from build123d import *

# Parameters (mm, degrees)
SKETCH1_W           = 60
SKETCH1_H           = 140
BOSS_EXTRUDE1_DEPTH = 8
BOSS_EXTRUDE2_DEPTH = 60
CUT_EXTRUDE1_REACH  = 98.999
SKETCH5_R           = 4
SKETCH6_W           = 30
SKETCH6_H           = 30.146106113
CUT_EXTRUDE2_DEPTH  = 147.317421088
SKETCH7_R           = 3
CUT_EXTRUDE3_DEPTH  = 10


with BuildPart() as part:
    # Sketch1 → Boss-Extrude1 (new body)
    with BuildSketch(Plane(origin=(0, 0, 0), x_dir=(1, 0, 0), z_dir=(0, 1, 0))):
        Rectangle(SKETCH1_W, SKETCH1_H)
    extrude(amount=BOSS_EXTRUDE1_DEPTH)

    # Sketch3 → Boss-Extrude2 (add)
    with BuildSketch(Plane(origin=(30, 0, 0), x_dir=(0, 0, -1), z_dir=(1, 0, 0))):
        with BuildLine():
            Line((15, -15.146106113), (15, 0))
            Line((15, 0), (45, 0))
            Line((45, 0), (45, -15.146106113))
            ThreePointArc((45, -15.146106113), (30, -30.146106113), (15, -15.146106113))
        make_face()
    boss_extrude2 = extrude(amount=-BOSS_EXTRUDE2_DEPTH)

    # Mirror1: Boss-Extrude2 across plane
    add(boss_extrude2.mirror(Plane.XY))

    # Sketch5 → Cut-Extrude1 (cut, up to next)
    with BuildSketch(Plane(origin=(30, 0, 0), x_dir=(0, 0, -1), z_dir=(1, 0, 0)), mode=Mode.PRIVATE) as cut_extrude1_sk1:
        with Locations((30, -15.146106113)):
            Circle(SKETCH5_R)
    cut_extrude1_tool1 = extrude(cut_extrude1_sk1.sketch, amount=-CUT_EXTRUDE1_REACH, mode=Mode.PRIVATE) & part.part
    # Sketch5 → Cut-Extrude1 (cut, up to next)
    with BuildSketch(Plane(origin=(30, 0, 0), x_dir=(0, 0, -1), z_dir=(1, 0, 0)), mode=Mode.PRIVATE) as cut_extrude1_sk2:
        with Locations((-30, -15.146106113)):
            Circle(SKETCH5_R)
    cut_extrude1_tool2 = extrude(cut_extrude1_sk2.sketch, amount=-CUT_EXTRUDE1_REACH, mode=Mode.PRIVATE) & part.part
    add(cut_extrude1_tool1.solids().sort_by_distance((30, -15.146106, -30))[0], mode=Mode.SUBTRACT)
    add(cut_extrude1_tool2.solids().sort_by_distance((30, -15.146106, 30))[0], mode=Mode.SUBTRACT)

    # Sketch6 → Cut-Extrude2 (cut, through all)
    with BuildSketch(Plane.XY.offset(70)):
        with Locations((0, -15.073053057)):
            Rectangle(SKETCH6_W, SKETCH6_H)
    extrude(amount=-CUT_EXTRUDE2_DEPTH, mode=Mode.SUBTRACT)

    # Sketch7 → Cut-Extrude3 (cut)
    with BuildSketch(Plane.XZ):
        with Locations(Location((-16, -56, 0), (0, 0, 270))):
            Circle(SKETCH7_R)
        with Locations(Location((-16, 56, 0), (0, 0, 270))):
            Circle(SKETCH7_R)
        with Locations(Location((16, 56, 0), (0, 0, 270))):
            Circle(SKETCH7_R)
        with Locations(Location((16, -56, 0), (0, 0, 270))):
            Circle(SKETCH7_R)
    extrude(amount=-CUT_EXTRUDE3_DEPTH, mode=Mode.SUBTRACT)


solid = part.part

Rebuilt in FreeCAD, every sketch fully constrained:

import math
import FreeCAD as App
import Part
import Sketcher


def add_polygon(sketch, points):
    """Adds a closed chain of lines whose ends are joined by coincident constraints."""
    first, n = sketch.GeometryCount, len(points)
    for a, b in zip(points, points[1:] + points[:1]):
        sketch.addGeometry(Part.LineSegment(App.Vector(*a, 0), App.Vector(*b, 0)), False)
    for i in range(n):
        sketch.addConstraint(Sketcher.Constraint("Coincident", first + i, 2, first + (i + 1) % n, 1))

doc = App.newDocument("Part")
body = doc.addObject("PartDesign::Body", "Body")

# Sketch on XZ plane
sketch1 = doc.addObject("Sketcher::SketchObject", "Sketch")
body.addObject(sketch1)
sketch1.AttachmentSupport = (doc.XZ_Plane, [""])
sketch1.MapMode = "FlatFace"
add_polygon(sketch1, [(-30, -70), (-30, 70), (30, 70), (30, -70)])  # lines 0-3
sketch1.addConstraint([
    Sketcher.Constraint("Vertical", 0),
    Sketcher.Constraint("Horizontal", 1),
    Sketcher.Constraint("Vertical", 2),
    Sketcher.Constraint("Horizontal", 3),
    Sketcher.Constraint("Symmetric", 0, 2, 2, 2, -1, 1),
    Sketcher.Constraint("DistanceX", 1, 1, 1, 2, 60.0),
    Sketcher.Constraint("DistanceY", 0, 1, 0, 2, 140.0),
])
pad1 = doc.addObject("PartDesign::Pad", "Pad")
body.addObject(pad1)
pad1.Profile = sketch1
pad1.Length = 8
pad1.Reversed = True

# Sketch on YZ plane
sketch2 = doc.addObject("Sketcher::SketchObject", "Sketch001")
body.addObject(sketch2)
sketch2.AttachmentSupport = (doc.YZ_Plane, [""])
sketch2.MapMode = "FlatFace"
sketch2.AttachmentOffset = App.Placement(App.Vector(0, 0, 30), App.Rotation())
sketch2.addGeometry([
    Part.LineSegment(App.Vector(0, -15, 0), App.Vector(-15, -15, 0)),
    Part.ArcOfCircle(Part.Circle(App.Vector(-15, -30, 0), App.Vector(0, 0, 1), 15), math.radians(90), math.radians(270)),
    Part.LineSegment(App.Vector(-15, -45, 0), App.Vector(0, -45, 0)),
    Part.LineSegment(App.Vector(0, -45, 0), App.Vector(0, -15, 0)),
], False)
sketch2.addConstraint([
    Sketcher.Constraint("Tangent", 0, 2, 1, 1),
    Sketcher.Constraint("Tangent", 1, 2, 2, 1),
    Sketcher.Constraint("Coincident", 2, 2, 3, 1),
    Sketcher.Constraint("Coincident", 3, 2, 0, 1),
    Sketcher.Constraint("Horizontal", 0),
    Sketcher.Constraint("Horizontal", 2),
    Sketcher.Constraint("Vertical", 3),
    Sketcher.Constraint("PointOnObject", 2, 2, -2),
    Sketcher.Constraint("Radius", 1, 15.0),
    Sketcher.Constraint("DistanceY", 1, 3, -1, 1, 30.0),
    Sketcher.Constraint("DistanceX", 0, 2, 0, 1, 15.146106),
])
pad2 = doc.addObject("PartDesign::Pad", "Pad001")
body.addObject(pad2)
pad2.Profile = sketch2
pad2.Length = 60
pad2.Reversed = True
doc.recompute()

mirrored = doc.addObject("PartDesign::Mirrored", "Mirrored")
body.addObject(mirrored)
mirrored.Originals = [pad2]
mirrored.MirrorPlane = (doc.XY_Plane, [""])
body.Tip = mirrored

# Sketch on YZ plane
sketch3 = doc.addObject("Sketcher::SketchObject", "Sketch002")
body.addObject(sketch3)
sketch3.AttachmentSupport = (doc.YZ_Plane, [""])
sketch3.MapMode = "FlatFace"
sketch3.AttachmentOffset = App.Placement(App.Vector(0, 0, 30), App.Rotation())
sketch3.addGeometry(Part.Circle(App.Vector(-15.1, -30, 0), App.Vector(0, 0, 1), 4), False)
sketch3.addConstraint([
    Sketcher.Constraint("Diameter", 0, 8.0),
    Sketcher.Constraint("DistanceY", 0, 3, -1, 1, 30.0),
    Sketcher.Constraint("DistanceX", 0, 3, -1, 1, 15.146106),
])
pocket1 = doc.addObject("PartDesign::Pocket", "Pocket")
body.addObject(pocket1)
pocket1.Profile = sketch3
pocket1.Type = "UpToFirst"

# Sketch on YZ plane
sketch4 = doc.addObject("Sketcher::SketchObject", "Sketch003")
body.addObject(sketch4)
sketch4.AttachmentSupport = (doc.YZ_Plane, [""])
sketch4.MapMode = "FlatFace"
sketch4.AttachmentOffset = App.Placement(App.Vector(0, 0, 30), App.Rotation())
sketch4.addGeometry(Part.Circle(App.Vector(-15.1, 30, 0), App.Vector(0, 0, 1), 4), False)
sketch4.addConstraint([
    Sketcher.Constraint("Diameter", 0, 8.0),
    Sketcher.Constraint("DistanceY", -1, 1, 0, 3, 30.0),
    Sketcher.Constraint("DistanceX", 0, 3, -1, 1, 15.146106),
])
pocket2 = doc.addObject("PartDesign::Pocket", "Pocket001")
body.addObject(pocket2)
pocket2.Profile = sketch4
pocket2.Type = "UpToFirst"

# Sketch on XY plane
sketch5 = doc.addObject("Sketcher::SketchObject", "Sketch004")
body.addObject(sketch5)
sketch5.AttachmentSupport = (doc.XY_Plane, [""])
sketch5.MapMode = "FlatFace"
sketch5.AttachmentOffset = App.Placement(App.Vector(0, 0, 70), App.Rotation())
add_polygon(sketch5, [(-15, 0), (-15, -30), (15, -30), (15, 0)])  # lines 0-3
sketch5.addConstraint([
    Sketcher.Constraint("Vertical", 0),
    Sketcher.Constraint("Horizontal", 1),
    Sketcher.Constraint("Vertical", 2),
    Sketcher.Constraint("Horizontal", 3),
    Sketcher.Constraint("Symmetric", 2, 2, 3, 2, -1, 1),
    Sketcher.Constraint("DistanceX", 1, 1, 1, 2, 30.0),
    Sketcher.Constraint("DistanceY", 0, 2, 0, 1, 30.146106),
])
pocket3 = doc.addObject("PartDesign::Pocket", "Pocket002")
body.addObject(pocket3)
pocket3.Profile = sketch5
pocket3.Type = "ThroughAll"

# Sketch on XZ plane
sketch6 = doc.addObject("Sketcher::SketchObject", "Sketch005")
body.addObject(sketch6)
sketch6.AttachmentSupport = (doc.XZ_Plane, [""])
sketch6.MapMode = "FlatFace"
sketch6.addGeometry([
    Part.Circle(App.Vector(-16, -56, 0), App.Vector(0, 0, 1), 3),
    Part.Circle(App.Vector(-16, 56, 0), App.Vector(0, 0, 1), 3),
    Part.Circle(App.Vector(16, 56, 0), App.Vector(0, 0, 1), 3),
    Part.Circle(App.Vector(16, -56, 0), App.Vector(0, 0, 1), 3),
], False)
sketch6.addConstraint([
    Sketcher.Constraint("Equal", 0, 1),
    Sketcher.Constraint("Equal", 1, 2),
    Sketcher.Constraint("Equal", 2, 3),
    Sketcher.Constraint("Symmetric", 0, 3, 2, 3, -1, 1),
    Sketcher.Constraint("Symmetric", 1, 3, 3, 3, -1, 1),
    Sketcher.Constraint("Symmetric", 1, 3, 2, 3, -2),
    Sketcher.Constraint("Diameter", 0, 6.0),
    Sketcher.Constraint("DistanceX", 0, 3, -1, 1, 16.0),
    Sketcher.Constraint("DistanceY", 0, 3, -1, 1, 56.0),
])
pocket4 = doc.addObject("PartDesign::Pocket", "Pocket003")
body.addObject(pocket4)
pocket4.Profile = sketch6
pocket4.Length = 10

doc.recompute()
